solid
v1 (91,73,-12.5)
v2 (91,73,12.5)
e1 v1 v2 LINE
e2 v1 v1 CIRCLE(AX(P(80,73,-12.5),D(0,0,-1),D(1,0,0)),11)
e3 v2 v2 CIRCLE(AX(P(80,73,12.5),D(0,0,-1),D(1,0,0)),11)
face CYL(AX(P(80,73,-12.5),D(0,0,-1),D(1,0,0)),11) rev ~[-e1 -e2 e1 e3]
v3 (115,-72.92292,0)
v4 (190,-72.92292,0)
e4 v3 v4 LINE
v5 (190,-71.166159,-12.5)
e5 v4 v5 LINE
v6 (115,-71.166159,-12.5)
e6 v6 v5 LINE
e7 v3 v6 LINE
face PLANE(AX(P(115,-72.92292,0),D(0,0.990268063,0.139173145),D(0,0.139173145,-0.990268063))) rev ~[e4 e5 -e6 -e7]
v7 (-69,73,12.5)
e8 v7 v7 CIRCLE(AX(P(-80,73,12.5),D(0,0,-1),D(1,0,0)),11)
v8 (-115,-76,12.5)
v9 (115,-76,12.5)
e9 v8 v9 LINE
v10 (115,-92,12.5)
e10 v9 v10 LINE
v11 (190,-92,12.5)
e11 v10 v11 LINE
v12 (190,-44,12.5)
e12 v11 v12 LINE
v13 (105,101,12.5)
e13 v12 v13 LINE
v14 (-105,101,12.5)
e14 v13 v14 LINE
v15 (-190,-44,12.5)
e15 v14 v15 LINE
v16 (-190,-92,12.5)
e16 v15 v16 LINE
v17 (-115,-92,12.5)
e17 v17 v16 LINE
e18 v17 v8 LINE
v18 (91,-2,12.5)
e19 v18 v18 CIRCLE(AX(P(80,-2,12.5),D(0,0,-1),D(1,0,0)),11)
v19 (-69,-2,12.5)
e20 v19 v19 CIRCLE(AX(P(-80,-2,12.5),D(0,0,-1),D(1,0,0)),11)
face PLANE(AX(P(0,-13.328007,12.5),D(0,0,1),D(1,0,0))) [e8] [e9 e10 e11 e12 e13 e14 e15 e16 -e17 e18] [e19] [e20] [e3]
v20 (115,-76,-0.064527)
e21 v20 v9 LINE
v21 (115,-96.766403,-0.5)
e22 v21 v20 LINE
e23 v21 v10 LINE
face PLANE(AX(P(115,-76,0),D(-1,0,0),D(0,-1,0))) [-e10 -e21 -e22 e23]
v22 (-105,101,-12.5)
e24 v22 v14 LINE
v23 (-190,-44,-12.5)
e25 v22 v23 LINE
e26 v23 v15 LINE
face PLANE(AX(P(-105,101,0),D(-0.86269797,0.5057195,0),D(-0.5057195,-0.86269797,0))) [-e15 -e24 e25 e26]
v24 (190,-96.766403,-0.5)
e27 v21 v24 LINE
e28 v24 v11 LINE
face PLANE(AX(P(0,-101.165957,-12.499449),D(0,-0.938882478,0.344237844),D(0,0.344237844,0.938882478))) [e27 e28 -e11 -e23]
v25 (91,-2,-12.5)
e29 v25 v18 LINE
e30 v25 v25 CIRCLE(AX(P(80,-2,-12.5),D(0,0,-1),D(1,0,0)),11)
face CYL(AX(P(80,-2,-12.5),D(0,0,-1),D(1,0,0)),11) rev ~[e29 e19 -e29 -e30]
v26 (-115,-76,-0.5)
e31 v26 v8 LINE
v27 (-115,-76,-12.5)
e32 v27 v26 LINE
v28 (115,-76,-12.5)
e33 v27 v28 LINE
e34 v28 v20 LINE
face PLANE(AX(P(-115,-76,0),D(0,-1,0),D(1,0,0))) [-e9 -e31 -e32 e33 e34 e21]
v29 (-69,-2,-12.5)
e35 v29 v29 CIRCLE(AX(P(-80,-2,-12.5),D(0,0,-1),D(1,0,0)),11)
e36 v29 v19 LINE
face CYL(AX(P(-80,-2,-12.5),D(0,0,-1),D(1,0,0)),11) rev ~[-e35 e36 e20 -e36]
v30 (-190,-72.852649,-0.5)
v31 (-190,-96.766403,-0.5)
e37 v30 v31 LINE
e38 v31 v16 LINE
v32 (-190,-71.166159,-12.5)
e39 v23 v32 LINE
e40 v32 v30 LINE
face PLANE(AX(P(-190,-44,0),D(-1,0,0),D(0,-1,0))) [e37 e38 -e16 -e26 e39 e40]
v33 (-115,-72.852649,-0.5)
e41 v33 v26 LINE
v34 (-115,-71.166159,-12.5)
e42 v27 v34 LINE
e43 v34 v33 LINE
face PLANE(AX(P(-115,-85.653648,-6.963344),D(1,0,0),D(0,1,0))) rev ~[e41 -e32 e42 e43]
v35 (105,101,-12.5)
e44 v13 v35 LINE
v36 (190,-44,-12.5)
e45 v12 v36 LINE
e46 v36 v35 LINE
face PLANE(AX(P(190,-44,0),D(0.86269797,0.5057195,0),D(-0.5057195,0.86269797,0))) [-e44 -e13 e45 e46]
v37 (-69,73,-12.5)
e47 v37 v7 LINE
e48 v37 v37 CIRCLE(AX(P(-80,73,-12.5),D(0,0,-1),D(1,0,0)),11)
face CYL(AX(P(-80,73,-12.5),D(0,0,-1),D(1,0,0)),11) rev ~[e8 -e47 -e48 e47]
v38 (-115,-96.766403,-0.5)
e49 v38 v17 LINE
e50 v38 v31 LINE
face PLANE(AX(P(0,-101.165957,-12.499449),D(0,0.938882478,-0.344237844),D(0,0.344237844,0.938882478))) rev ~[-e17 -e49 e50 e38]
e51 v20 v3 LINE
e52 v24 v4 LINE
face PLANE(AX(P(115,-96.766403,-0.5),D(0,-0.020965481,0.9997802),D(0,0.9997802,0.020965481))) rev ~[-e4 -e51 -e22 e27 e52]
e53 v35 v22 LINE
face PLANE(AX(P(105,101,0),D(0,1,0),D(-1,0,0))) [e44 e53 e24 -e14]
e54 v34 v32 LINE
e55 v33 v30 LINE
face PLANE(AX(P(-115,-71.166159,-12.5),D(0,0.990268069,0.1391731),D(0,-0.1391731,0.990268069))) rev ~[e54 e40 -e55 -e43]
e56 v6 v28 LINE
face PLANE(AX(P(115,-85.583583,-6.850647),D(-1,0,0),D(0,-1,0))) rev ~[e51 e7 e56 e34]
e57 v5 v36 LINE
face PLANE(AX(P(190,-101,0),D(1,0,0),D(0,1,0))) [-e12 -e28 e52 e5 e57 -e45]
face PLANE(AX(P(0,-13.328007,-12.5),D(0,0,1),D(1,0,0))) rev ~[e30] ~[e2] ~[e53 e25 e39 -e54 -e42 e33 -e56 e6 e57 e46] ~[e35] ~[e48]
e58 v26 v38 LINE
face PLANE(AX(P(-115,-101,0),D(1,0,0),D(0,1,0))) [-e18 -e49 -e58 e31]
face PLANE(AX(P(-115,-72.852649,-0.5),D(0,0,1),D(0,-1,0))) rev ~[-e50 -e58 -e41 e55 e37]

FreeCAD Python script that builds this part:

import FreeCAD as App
import Part
import Sketcher
from FreeCAD import Vector
Q = App.Units.Quantity


def add_polygon(sketch, points):
    """Adds a closed chain of lines whose ends are joined by coincident constraints."""
    first, n = sketch.GeometryCount, len(points)
    for a, b in zip(points, points[1:] + points[:1]):
        sketch.addGeometry(Part.LineSegment(App.Vector(*a, 0), App.Vector(*b, 0)), False)
    for i in range(n):
        sketch.addConstraint(Sketcher.Constraint("Coincident", first + i, 2, first + (i + 1) % n, 1))

doc = App.newDocument("Part")
body = doc.addObject("PartDesign::Body", "Body")

# Sketch on XY plane
sketch1 = body.newObject("Sketcher::SketchObject", "Sketch")
sketch1.AttachmentSupport = (doc.getObject("XY_Plane"), [""])
sketch1.MapMode = "FlatFace"
add_polygon(sketch1, [(105, 101), (-105, 101), (-190, -44), (-190, -101), (-115, -101), (-115, -76), (115, -76), (115, -101), (190, -101), (190, -44)])  # lines 0-9
sketch1.addConstraint([
    Sketcher.Constraint("Horizontal", 0),
    Sketcher.Constraint("Vertical", 2),
    Sketcher.Constraint("Horizontal", 3),
    Sketcher.Constraint("Vertical", 4),
    Sketcher.Constraint("Horizontal", 5),
    Sketcher.Constraint("Vertical", 6),
    Sketcher.Constraint("Horizontal", 7),
    Sketcher.Constraint("Vertical", 8),
    Sketcher.Constraint("Symmetric", 3, 2, 6, 2, -2),
    Sketcher.Constraint("Symmetric", 1, 2, 8, 2, -2),
    Sketcher.Constraint("Equal", 1, 9),
    Sketcher.Constraint("DistanceX", 0, 2, 0, 1, 210.0),
    Sketcher.Constraint("DistanceX", 3, 1, 3, 2, 75.0),
    Sketcher.Constraint("DistanceX", 5, 1, 5, 2, 230.0),
    Sketcher.Constraint("DistanceY", 2, 2, 2, 1, 57.0),
    Sketcher.Constraint("DistanceY", 4, 1, 4, 2, 25.0),
    Sketcher.Constraint("DistanceY", -1, 1, 0, 2, 101.0),
    Sketcher.Constraint("DistanceY", 1, 2, -1, 1, 44.0),
])
pad1 = body.newObject("PartDesign::Pad", "Pad")
pad1.Profile = sketch1
pad1.Type = "TwoLengths"
pad1.Length = 12.5
pad1.Length2 = 12.5

# Sketch on YZ plane
sketch2 = body.newObject("Sketcher::SketchObject", "Sketch001")
sketch2.AttachmentSupport = (doc.getObject("YZ_Plane"), [""])
sketch2.MapMode = "FlatFace"
add_polygon(sketch2, [(-92, 12.5), (-101, 12.5), (-101.165957, -12.499449)])  # lines 0-2
sketch2.addConstraint([
    Sketcher.Constraint("Horizontal", 0),
    Sketcher.Constraint("DistanceX", 0, 2, 0, 1, 9.0),
    Sketcher.Constraint("Distance", 1, 25.0),
    Sketcher.Constraint("DistanceX", 0, 2, -1, 1, 101.0),
    Sketcher.Constraint("DistanceY", -1, 1, 0, 2, 12.5),
    Sketcher.Constraint("DistanceY", 1, 2, -1, 1, 12.499449),
])
pocket1 = body.newObject("PartDesign::Pocket", "Pocket")
pocket1.Profile = sketch2
pocket1.Type = "ThroughAll"
pocket1.Midplane = True

# Sketch on YZ plane
sketch3 = body.newObject("Sketcher::SketchObject", "Sketch002")
sketch3.AttachmentSupport = (doc.getObject("YZ_Plane"), [""])
sketch3.MapMode = "FlatFace"
sketch3.AttachmentOffset = App.Placement(Vector(0, 0, -115), App.Rotation())
add_polygon(sketch3, [(-73, 0), (-97, 0), (-101, -12), (-71, -12)])  # lines 0-3
sketch3.addConstraint([
    Sketcher.Constraint("Horizontal", 0),
    Sketcher.Constraint("Horizontal", 2),
    Sketcher.Constraint("DistanceX", 2, 1, 2, 2, 30.0),
    Sketcher.Constraint("Angle", 3, Q("98 deg")),
    Sketcher.Constraint("DistanceY", 1, 2, 0, 2, 12.0),
    Sketcher.Constraint("DistanceY", 0, 2, -1, 1, 0.5),
    Sketcher.Constraint("DistanceX", 0, 2, 0, 1, 23.913754),
    Sketcher.Constraint("DistanceX", 1, 2, -1, 1, 101.166159),
])
pocket2 = body.newObject("PartDesign::Pocket", "Pocket001")
pocket2.Profile = sketch3
pocket2.Type = "ThroughAll"

# Sketch on YZ plane
sketch4 = body.newObject("Sketcher::SketchObject", "Sketch003")
sketch4.AttachmentSupport = (doc.getObject("YZ_Plane"), [""])
sketch4.MapMode = "FlatFace"
sketch4.AttachmentOffset = App.Placement(Vector(0, 0, 115), App.Rotation())
add_polygon(sketch4, [(-101, -12), (-97, 0), (-73, 0), (-71, -12)])  # lines 0-3
sketch4.addConstraint([
    Sketcher.Constraint("Horizontal", 3),
    Sketcher.Constraint("PointOnObject", 1, 2, -1),
    Sketcher.Constraint("DistanceX", 3, 2, 3, 1, 30.0),
    Sketcher.Constraint("Angle", 2, Q("-81.999997 deg")),
    Sketcher.Constraint("DistanceY", 2, 2, 0, 2, 12.0),
    Sketcher.Constraint("DistanceY", 0, 2, -1, 1, 0.5),
    Sketcher.Constraint("DistanceX", 1, 2, -1, 1, 72.92292),
    Sketcher.Constraint("Distance", 0, 12.781152),
])
pocket3 = body.newObject("PartDesign::Pocket", "Pocket002")
pocket3.Profile = sketch4
pocket3.Type = "ThroughAll"
pocket3.Reversed = True

# Sketch on XY plane
sketch5 = body.newObject("Sketcher::SketchObject", "Sketch004")
sketch5.AttachmentSupport = (doc.getObject("XY_Plane"), [""])
sketch5.MapMode = "FlatFace"
sketch5.AttachmentOffset = App.Placement(Vector(0, 0, -12.5), App.Rotation())
sketch5.addGeometry([
    Part.Circle(Vector(-80, 73, 0), Vector(0, 0, 1), 11),
    Part.Circle(Vector(-80, -2, 0), Vector(0, 0, 1), 11),
    Part.Circle(Vector(80, 73, 0), Vector(0, 0, 1), 11),
    Part.Circle(Vector(80, -2, 0), Vector(0, 0, 1), 11),
], False)
sketch5.addConstraint([
    Sketcher.Constraint("Equal", 0, 1),
    Sketcher.Constraint("Equal", 1, 2),
    Sketcher.Constraint("Equal", 2, 3),
    Sketcher.Constraint("Symmetric", 0, 3, 2, 3, -2),
    Sketcher.Constraint("Symmetric", 1, 3, 3, 3, -2),
    Sketcher.Constraint("Vertical", 0, 3, 1, 3),
    Sketcher.Constraint("Diameter", 0, 22.0),
    Sketcher.Constraint("DistanceX", 0, 3, -1, 1, 80.0),
    Sketcher.Constraint("DistanceY", -1, 1, 0, 3, 73.0),
    Sketcher.Constraint("DistanceY", 1, 3, -1, 1, 2.0),
])
pocket4 = body.newObject("PartDesign::Pocket", "Pocket003")
pocket4.Profile = sketch5
pocket4.Length = 25
pocket4.Reversed = True

doc.recompute()
